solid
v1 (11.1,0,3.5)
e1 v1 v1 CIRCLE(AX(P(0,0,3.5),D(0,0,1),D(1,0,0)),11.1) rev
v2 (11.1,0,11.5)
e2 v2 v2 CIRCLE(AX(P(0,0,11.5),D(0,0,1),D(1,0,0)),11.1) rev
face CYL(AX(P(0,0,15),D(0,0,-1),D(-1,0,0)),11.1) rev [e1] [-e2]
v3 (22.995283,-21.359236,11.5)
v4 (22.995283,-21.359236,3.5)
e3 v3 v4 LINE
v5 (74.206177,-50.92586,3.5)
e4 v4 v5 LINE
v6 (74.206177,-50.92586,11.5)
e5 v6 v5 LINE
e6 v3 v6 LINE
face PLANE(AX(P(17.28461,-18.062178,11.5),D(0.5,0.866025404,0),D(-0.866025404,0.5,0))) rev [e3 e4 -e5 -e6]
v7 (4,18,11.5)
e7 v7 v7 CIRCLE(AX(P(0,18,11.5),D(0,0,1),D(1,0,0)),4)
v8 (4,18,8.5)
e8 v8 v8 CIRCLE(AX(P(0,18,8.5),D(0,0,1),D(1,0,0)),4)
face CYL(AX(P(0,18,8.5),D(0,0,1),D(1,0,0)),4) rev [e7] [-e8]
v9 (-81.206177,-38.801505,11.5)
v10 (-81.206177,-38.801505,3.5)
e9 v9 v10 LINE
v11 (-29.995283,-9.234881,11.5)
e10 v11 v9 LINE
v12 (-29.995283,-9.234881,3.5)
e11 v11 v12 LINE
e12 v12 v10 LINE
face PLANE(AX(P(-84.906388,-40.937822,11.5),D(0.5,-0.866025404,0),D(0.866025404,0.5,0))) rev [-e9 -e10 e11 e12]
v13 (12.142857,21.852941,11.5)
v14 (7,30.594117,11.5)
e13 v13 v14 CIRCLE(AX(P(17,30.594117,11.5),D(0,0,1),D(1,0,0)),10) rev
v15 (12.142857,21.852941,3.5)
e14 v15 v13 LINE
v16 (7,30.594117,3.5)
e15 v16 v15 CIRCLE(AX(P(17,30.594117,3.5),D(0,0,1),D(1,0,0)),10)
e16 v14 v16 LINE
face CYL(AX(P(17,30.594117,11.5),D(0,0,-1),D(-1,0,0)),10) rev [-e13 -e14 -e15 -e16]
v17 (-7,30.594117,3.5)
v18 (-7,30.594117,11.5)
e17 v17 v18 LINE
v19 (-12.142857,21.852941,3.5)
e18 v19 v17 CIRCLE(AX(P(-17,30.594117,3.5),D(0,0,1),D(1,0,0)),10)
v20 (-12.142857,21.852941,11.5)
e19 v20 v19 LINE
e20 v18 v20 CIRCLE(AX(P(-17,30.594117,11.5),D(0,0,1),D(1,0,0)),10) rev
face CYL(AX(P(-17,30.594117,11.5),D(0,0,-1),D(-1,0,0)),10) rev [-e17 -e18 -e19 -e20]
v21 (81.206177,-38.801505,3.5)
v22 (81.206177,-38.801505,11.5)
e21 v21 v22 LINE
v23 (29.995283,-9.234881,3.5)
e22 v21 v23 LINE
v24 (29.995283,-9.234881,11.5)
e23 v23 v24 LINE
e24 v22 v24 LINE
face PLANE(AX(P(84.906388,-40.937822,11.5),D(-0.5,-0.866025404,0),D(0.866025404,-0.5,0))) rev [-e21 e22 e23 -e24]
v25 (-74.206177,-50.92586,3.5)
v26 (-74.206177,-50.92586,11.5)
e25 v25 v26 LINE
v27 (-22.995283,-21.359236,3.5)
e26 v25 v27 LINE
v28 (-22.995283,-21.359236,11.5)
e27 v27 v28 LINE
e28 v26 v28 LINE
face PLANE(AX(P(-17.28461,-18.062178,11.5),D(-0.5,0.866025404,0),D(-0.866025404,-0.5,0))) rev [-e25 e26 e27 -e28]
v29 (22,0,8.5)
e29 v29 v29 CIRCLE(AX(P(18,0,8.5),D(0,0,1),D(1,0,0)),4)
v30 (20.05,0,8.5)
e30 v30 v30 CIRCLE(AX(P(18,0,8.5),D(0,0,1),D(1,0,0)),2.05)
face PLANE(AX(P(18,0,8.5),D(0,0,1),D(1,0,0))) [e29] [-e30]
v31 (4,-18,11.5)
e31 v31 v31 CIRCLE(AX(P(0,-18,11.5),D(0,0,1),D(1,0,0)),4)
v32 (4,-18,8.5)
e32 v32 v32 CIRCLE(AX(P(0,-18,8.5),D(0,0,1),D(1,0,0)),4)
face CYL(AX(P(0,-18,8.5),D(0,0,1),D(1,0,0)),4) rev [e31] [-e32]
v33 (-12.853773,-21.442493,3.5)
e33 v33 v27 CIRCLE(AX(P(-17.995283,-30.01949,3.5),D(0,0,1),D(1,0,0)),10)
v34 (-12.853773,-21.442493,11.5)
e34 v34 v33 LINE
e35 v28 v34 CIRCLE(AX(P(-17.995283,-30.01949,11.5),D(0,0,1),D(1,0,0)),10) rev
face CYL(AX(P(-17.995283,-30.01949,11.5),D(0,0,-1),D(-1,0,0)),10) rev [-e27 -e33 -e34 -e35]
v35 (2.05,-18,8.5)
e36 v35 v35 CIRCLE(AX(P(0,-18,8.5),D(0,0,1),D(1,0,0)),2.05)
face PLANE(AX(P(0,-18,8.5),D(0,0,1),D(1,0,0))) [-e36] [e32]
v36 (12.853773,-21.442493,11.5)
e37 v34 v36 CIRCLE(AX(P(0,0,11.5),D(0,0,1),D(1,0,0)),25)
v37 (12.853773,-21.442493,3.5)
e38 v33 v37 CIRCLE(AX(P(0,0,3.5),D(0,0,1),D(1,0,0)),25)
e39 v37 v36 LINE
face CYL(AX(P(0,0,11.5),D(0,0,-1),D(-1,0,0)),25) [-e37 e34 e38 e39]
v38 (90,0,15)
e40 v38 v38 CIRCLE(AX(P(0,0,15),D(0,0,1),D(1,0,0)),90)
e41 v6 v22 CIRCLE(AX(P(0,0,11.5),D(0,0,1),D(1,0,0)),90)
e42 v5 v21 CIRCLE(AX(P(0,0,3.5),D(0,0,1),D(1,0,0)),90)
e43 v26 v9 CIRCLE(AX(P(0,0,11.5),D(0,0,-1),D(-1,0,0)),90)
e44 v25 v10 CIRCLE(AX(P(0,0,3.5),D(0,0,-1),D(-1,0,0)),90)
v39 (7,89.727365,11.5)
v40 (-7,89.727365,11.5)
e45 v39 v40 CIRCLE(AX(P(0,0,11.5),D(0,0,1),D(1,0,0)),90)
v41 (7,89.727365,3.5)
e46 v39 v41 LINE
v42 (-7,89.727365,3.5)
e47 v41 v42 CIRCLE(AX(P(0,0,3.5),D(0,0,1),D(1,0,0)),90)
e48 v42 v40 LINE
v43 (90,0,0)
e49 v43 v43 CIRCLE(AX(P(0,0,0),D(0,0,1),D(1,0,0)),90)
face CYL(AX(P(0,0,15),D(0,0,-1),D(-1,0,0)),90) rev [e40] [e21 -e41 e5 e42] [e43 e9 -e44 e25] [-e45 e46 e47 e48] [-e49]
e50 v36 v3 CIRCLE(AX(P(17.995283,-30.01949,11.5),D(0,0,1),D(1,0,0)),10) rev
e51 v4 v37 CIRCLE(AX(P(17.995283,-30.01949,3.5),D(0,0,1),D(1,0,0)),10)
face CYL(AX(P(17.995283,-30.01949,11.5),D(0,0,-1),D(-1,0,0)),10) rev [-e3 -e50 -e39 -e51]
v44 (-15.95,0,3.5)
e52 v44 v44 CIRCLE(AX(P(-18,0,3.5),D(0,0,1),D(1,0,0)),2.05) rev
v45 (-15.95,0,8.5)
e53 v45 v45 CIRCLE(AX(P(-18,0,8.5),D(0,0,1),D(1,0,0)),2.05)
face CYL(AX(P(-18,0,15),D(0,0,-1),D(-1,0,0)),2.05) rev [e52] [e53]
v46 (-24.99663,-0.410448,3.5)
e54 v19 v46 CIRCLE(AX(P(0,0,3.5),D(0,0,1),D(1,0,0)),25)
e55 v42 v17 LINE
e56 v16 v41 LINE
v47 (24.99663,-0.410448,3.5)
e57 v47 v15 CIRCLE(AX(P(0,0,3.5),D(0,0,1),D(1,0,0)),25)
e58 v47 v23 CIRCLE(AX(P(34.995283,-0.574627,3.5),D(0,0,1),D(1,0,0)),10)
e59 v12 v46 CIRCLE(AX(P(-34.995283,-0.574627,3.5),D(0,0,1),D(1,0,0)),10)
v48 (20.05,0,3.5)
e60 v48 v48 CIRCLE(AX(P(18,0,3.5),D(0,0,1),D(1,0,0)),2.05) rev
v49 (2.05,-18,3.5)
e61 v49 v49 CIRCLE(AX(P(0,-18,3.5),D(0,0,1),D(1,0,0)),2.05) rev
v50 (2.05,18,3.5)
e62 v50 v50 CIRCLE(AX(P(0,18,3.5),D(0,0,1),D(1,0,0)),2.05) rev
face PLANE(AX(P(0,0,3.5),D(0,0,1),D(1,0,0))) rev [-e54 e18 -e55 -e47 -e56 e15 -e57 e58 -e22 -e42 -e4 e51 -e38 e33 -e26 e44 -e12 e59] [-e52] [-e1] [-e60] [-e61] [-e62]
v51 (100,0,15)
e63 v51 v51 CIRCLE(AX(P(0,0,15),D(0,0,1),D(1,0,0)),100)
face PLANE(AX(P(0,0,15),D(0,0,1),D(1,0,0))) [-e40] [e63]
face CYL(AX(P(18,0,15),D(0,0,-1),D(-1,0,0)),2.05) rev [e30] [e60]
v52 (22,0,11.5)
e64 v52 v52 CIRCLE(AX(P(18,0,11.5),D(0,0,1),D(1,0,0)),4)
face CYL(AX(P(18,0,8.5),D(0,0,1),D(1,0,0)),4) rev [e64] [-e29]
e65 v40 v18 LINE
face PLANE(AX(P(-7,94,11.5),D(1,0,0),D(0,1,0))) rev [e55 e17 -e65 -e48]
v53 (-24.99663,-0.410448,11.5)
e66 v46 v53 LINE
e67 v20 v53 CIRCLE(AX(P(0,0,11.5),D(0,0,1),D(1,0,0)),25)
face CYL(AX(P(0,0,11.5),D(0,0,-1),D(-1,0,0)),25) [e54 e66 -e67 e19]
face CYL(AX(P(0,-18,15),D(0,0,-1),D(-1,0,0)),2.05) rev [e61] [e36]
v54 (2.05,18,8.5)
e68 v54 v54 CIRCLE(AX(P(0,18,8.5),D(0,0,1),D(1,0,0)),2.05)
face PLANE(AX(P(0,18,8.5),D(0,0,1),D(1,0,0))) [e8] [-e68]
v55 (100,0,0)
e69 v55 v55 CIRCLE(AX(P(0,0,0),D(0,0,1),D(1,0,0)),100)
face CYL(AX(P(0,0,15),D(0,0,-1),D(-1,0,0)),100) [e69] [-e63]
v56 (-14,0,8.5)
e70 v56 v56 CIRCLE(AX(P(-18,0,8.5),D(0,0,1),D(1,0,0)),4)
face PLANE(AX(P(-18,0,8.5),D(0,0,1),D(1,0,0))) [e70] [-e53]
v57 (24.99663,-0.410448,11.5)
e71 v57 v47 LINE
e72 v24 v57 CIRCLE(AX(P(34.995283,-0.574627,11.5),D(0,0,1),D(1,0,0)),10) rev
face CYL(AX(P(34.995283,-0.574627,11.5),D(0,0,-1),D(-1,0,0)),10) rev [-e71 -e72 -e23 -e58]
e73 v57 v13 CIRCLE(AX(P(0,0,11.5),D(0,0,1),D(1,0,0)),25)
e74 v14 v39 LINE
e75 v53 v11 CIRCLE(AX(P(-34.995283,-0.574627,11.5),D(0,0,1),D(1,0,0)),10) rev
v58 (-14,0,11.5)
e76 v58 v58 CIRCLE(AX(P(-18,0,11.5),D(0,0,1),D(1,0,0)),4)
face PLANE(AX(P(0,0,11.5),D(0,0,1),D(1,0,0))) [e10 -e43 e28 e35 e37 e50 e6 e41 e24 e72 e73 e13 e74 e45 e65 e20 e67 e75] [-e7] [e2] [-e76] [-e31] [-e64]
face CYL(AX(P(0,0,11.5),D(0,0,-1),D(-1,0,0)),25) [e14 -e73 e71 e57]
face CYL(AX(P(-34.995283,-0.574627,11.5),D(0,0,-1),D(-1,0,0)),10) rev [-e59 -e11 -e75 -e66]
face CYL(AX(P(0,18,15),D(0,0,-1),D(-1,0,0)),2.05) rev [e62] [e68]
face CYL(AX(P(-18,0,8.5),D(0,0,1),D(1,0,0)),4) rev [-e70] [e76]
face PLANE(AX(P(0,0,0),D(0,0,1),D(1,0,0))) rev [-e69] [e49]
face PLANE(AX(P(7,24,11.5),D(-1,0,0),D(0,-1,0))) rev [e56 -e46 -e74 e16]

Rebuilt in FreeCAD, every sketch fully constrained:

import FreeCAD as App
import Part
import Sketcher
Q = App.Units.Quantity


def edges_at(feature, points):
    """Names of the edges that pass closest to the given points."""
    edges = feature.Shape.Edges
    near = lambda p: min(range(len(edges)), key=lambda i: edges[i].distToShape(Part.Vertex(*p))[0])
    return sorted({f"Edge{near(p) + 1}" for p in points})

doc = App.newDocument("Part")
body = doc.addObject("PartDesign::Body", "Body")

sketch1 = body.newObject("Sketcher::SketchObject", "Sketch")
sketch1.AttachmentSupport = (doc.getObject("XY_Plane"), [""])
sketch1.MapMode = "FlatFace"
sketch1.addGeometry(Part.Circle(App.Vector(0, 0, 0), App.Vector(0, 0, 1), 100), False)
sketch1.addConstraint(Sketcher.Constraint("Coincident", 0, 3, -1, 1))
sketch1.addConstraint(Sketcher.Constraint("Diameter", 0, 200.0))
pad1 = body.newObject("PartDesign::Pad", "Pad")
pad1.Profile = sketch1
pad1.Length = 15

sketch2 = body.newObject("Sketcher::SketchObject", "Sketch001")
sketch2.AttachmentSupport = (doc.getObject("XY_Plane"), [""])
sketch2.MapMode = "FlatFace"
sketch2.addGeometry(Part.Circle(App.Vector(0, 0, 0), App.Vector(0, 0, 1), 90), False)
sketch2.addConstraint(Sketcher.Constraint("Coincident", 0, 3, -1, 1))
sketch2.addConstraint(Sketcher.Constraint("Diameter", 0, 180.0))
pocket1 = body.newObject("PartDesign::Pocket", "Pocket")
pocket1.Profile = sketch2
pocket1.Type = "ThroughAll"
pocket1.Midplane = True
body2 = doc.addObject("PartDesign::Body", "Body001")

sketch3 = body2.newObject("Sketcher::SketchObject", "Sketch002")
sketch3.AttachmentSupport = (doc.getObject("XY_Plane001"), [""])
sketch3.MapMode = "FlatFace"
sketch3.AttachmentOffset = App.Placement(App.Vector(0, 0, 3.5), App.Rotation())
sketch3.addGeometry(Part.Circle(App.Vector(0, 0, 0), App.Vector(0, 0, 1), 25), False)
sketch3.addConstraint(Sketcher.Constraint("Coincident", 0, 3, -1, 1))
sketch3.addConstraint(Sketcher.Constraint("Diameter", 0, 50.0))
pad2 = body2.newObject("PartDesign::Pad", "Pad001")
pad2.Profile = sketch3
pad2.Length = 8
body.AllowCompound = True
doc.recompute()

boolean = body.newObject("PartDesign::Boolean", "Boolean")
boolean.Type = "Fuse"
boolean.addObjects([body2])

sketch4 = body.newObject("Sketcher::SketchObject", "Sketch003")
sketch4.AttachmentSupport = (doc.getObject("XY_Plane"), [""])
sketch4.MapMode = "FlatFace"
sketch4.AttachmentOffset = App.Placement(App.Vector(0, 0, 3.5), App.Rotation())
sketch4.addGeometry(Part.LineSegment(App.Vector(-7, 94, 0), App.Vector(-7, 24, 0)), False)
sketch4.addGeometry(Part.LineSegment(App.Vector(-7, 24, 0), App.Vector(7, 24, 0)), False)
sketch4.addGeometry(Part.LineSegment(App.Vector(7, 24, 0), App.Vector(7, 94, 0)), False)
sketch4.addGeometry(Part.LineSegment(App.Vector(7, 94, 0), App.Vector(-7, 94, 0)), False)
sketch4.addGeometry(Part.LineSegment(App.Vector(17.28461, -18.062178, 0), App.Vector(77.906388, -53.062178, 0)), False)
sketch4.addGeometry(Part.LineSegment(App.Vector(77.906388, -53.062178, 0), App.Vector(84.906388, -40.937822, 0)), False)
sketch4.addGeometry(Part.LineSegment(App.Vector(84.906388, -40.937822, 0), App.Vector(24.28461, -5.937822, 0)), False)
sketch4.addGeometry(Part.LineSegment(App.Vector(24.28461, -5.937822, 0), App.Vector(17.28461, -18.062178, 0)), False)
sketch4.addGeometry(Part.LineSegment(App.Vector(-77.906388, -53.062178, 0), App.Vector(-17.28461, -18.062178, 0)), False)
sketch4.addGeometry(Part.LineSegment(App.Vector(-17.28461, -18.062178, 0), App.Vector(-24.28461, -5.937822, 0)), False)
sketch4.addGeometry(Part.LineSegment(App.Vector(-24.28461, -5.937822, 0), App.Vector(-84.906388, -40.937822, 0)), False)
sketch4.addGeometry(Part.LineSegment(App.Vector(-84.906388, -40.937822, 0), App.Vector(-77.906388, -53.062178, 0)), False)
sketch4.addConstraint(Sketcher.Constraint("Coincident", 0, 2, 1, 1))
sketch4.addConstraint(Sketcher.Constraint("Coincident", 1, 2, 2, 1))
sketch4.addConstraint(Sketcher.Constraint("Coincident", 2, 2, 3, 1))
sketch4.addConstraint(Sketcher.Constraint("Coincident", 3, 2, 0, 1))
sketch4.addConstraint(Sketcher.Constraint("Coincident", 4, 2, 5, 1))
sketch4.addConstraint(Sketcher.Constraint("Coincident", 5, 2, 6, 1))
sketch4.addConstraint(Sketcher.Constraint("Coincident", 6, 2, 7, 1))
sketch4.addConstraint(Sketcher.Constraint("Coincident", 7, 2, 4, 1))
sketch4.addConstraint(Sketcher.Constraint("Coincident", 8, 2, 9, 1))
sketch4.addConstraint(Sketcher.Constraint("Coincident", 9, 2, 10, 1))
sketch4.addConstraint(Sketcher.Constraint("Coincident", 10, 2, 11, 1))
sketch4.addConstraint(Sketcher.Constraint("Coincident", 11, 2, 8, 1))
sketch4.addConstraint(Sketcher.Constraint("Vertical", 0))
sketch4.addConstraint(Sketcher.Constraint("Horizontal", 1))
sketch4.addConstraint(Sketcher.Constraint("Vertical", 2))
sketch4.addConstraint(Sketcher.Constraint("Horizontal", 3))
sketch4.addConstraint(Sketcher.Constraint("Symmetric", 7, 2, 8, 2, -2))
sketch4.addConstraint(Sketcher.Constraint("Symmetric", 6, 2, 9, 2, -2))
sketch4.addConstraint(Sketcher.Constraint("Symmetric", 5, 2, 10, 2, -2))
sketch4.addConstraint(Sketcher.Constraint("Symmetric", 4, 2, 11, 2, -2))
sketch4.addConstraint(Sketcher.Constraint("Perpendicular", 4, 5))
sketch4.addConstraint(Sketcher.Constraint("Perpendicular", 5, 6))
sketch4.addConstraint(Sketcher.Constraint("Perpendicular", 6, 7))
sketch4.addConstraint(Sketcher.Constraint("DistanceX", 1, 1, 1, 2, 14.0))
sketch4.addConstraint(Sketcher.Constraint("DistanceY", 0, 2, 0, 1, 70.0))
sketch4.addConstraint(Sketcher.Constraint("Angle", 4, Q("-30 deg")))
sketch4.addConstraint(Sketcher.Constraint("Distance", 4, 70.0))
sketch4.addConstraint(Sketcher.Constraint("Distance", 5, 14.0))
sketch4.addConstraint(Sketcher.Constraint("DistanceX", 0, 2, -1, 1, 7.0))
sketch4.addConstraint(Sketcher.Constraint("DistanceY", -1, 1, 0, 2, 24.0))
sketch4.addConstraint(Sketcher.Constraint("DistanceX", -1, 1, 6, 2, 24.28461))
sketch4.addConstraint(Sketcher.Constraint("DistanceY", 4, 2, -1, 1, 53.062178))
pad3 = body.newObject("PartDesign::Pad", "Pad002")
pad3.Profile = sketch4
pad3.Length = 8

sketch5 = body.newObject("Sketcher::SketchObject", "Sketch004")
sketch5.AttachmentSupport = (doc.getObject("XY_Plane"), [""])
sketch5.MapMode = "FlatFace"
sketch5.addGeometry(Part.Circle(App.Vector(0, 0, 0), App.Vector(0, 0, 1), 11.1), False)
sketch5.addConstraint(Sketcher.Constraint("Coincident", 0, 3, -1, 1))
sketch5.addConstraint(Sketcher.Constraint("Diameter", 0, 22.2))
pocket2 = body.newObject("PartDesign::Pocket", "Pocket001")
pocket2.Profile = sketch5
pocket2.Type = "ThroughAll"
pocket2.Reversed = True

sketch6 = body.newObject("Sketcher::SketchObject", "Sketch005")
sketch6.AttachmentSupport = (doc.getObject("XY_Plane"), [""])
sketch6.MapMode = "FlatFace"
sketch6.addGeometry(Part.Circle(App.Vector(0, 18, 0), App.Vector(0, 0, 1), 2.05), False)
sketch6.addGeometry(Part.Circle(App.Vector(18, 0, 0), App.Vector(0, 0, 1), 2.05), False)
sketch6.addGeometry(Part.Circle(App.Vector(0, -18, 0), App.Vector(0, 0, 1), 2.05), False)
sketch6.addGeometry(Part.Circle(App.Vector(-18, 0, 0), App.Vector(0, 0, 1), 2.05), False)
sketch6.addConstraint(Sketcher.Constraint("Equal", 0, 1))
sketch6.addConstraint(Sketcher.Constraint("Equal", 1, 2))
sketch6.addConstraint(Sketcher.Constraint("Equal", 2, 3))
sketch6.addConstraint(Sketcher.Constraint("Symmetric", 0, 3, 2, 3, -1, 1))
sketch6.addConstraint(Sketcher.Constraint("Symmetric", 1, 3, 3, 3, -1, 1))
sketch6.addConstraint(Sketcher.Constraint("PointOnObject", 0, 3, -2))
sketch6.addConstraint(Sketcher.Constraint("PointOnObject", 1, 3, -1))
sketch6.addConstraint(Sketcher.Constraint("Diameter", 0, 4.1))
sketch6.addConstraint(Sketcher.Constraint("DistanceY", -1, 1, 0, 3, 18.0))
sketch6.addConstraint(Sketcher.Constraint("DistanceX", -1, 1, 1, 3, 18.0))
pocket3 = body.newObject("PartDesign::Pocket", "Pocket002")
pocket3.Profile = sketch6
pocket3.Type = "ThroughAll"
pocket3.Reversed = True
doc.recompute()

fillet = body.newObject("PartDesign::Fillet", "Fillet")
fillet.Base = (pocket3, edges_at(pocket3, [
    (-7, 24, 7.5),
    (7, 24, 7.5),
    (24.285, -5.938, 7.5),
    (17.285, -18.062, 7.5),
    (-17.285, -18.062, 7.5),
    (-24.285, -5.938, 7.5),
]))
fillet.Radius = 10

sketch7 = body.newObject("Sketcher::SketchObject", "Sketch006")
sketch7.AttachmentSupport = (doc.getObject("XY_Plane"), [""])
sketch7.MapMode = "FlatFace"
sketch7.AttachmentOffset = App.Placement(App.Vector(0, 0, 8.5), App.Rotation())
sketch7.addGeometry(Part.Circle(App.Vector(18, 0, 0), App.Vector(0, 0, 1), 4), False)
sketch7.addGeometry(Part.Circle(App.Vector(0, -18, 0), App.Vector(0, 0, 1), 4), False)
sketch7.addGeometry(Part.Circle(App.Vector(-18, 0, 0), App.Vector(0, 0, 1), 4), False)
sketch7.addGeometry(Part.Circle(App.Vector(0, 18, 0), App.Vector(0, 0, 1), 4), False)
sketch7.addConstraint(Sketcher.Constraint("Equal", 0, 1))
sketch7.addConstraint(Sketcher.Constraint("Equal", 1, 2))
sketch7.addConstraint(Sketcher.Constraint("Equal", 2, 3))
sketch7.addConstraint(Sketcher.Constraint("Symmetric", 0, 3, 2, 3, -1, 1))
sketch7.addConstraint(Sketcher.Constraint("Symmetric", 1, 3, 3, 3, -1, 1))
sketch7.addConstraint(Sketcher.Constraint("PointOnObject", 0, 3, -1))
sketch7.addConstraint(Sketcher.Constraint("PointOnObject", 1, 3, -2))
sketch7.addConstraint(Sketcher.Constraint("Diameter", 0, 8.0))
sketch7.addConstraint(Sketcher.Constraint("DistanceX", -1, 1, 0, 3, 18.0))
sketch7.addConstraint(Sketcher.Constraint("DistanceY", 1, 3, -1, 1, 18.0))
pocket4 = body.newObject("PartDesign::Pocket", "Pocket003")
pocket4.Profile = sketch7
pocket4.Length = 3
pocket4.Reversed = True

doc.recompute()
